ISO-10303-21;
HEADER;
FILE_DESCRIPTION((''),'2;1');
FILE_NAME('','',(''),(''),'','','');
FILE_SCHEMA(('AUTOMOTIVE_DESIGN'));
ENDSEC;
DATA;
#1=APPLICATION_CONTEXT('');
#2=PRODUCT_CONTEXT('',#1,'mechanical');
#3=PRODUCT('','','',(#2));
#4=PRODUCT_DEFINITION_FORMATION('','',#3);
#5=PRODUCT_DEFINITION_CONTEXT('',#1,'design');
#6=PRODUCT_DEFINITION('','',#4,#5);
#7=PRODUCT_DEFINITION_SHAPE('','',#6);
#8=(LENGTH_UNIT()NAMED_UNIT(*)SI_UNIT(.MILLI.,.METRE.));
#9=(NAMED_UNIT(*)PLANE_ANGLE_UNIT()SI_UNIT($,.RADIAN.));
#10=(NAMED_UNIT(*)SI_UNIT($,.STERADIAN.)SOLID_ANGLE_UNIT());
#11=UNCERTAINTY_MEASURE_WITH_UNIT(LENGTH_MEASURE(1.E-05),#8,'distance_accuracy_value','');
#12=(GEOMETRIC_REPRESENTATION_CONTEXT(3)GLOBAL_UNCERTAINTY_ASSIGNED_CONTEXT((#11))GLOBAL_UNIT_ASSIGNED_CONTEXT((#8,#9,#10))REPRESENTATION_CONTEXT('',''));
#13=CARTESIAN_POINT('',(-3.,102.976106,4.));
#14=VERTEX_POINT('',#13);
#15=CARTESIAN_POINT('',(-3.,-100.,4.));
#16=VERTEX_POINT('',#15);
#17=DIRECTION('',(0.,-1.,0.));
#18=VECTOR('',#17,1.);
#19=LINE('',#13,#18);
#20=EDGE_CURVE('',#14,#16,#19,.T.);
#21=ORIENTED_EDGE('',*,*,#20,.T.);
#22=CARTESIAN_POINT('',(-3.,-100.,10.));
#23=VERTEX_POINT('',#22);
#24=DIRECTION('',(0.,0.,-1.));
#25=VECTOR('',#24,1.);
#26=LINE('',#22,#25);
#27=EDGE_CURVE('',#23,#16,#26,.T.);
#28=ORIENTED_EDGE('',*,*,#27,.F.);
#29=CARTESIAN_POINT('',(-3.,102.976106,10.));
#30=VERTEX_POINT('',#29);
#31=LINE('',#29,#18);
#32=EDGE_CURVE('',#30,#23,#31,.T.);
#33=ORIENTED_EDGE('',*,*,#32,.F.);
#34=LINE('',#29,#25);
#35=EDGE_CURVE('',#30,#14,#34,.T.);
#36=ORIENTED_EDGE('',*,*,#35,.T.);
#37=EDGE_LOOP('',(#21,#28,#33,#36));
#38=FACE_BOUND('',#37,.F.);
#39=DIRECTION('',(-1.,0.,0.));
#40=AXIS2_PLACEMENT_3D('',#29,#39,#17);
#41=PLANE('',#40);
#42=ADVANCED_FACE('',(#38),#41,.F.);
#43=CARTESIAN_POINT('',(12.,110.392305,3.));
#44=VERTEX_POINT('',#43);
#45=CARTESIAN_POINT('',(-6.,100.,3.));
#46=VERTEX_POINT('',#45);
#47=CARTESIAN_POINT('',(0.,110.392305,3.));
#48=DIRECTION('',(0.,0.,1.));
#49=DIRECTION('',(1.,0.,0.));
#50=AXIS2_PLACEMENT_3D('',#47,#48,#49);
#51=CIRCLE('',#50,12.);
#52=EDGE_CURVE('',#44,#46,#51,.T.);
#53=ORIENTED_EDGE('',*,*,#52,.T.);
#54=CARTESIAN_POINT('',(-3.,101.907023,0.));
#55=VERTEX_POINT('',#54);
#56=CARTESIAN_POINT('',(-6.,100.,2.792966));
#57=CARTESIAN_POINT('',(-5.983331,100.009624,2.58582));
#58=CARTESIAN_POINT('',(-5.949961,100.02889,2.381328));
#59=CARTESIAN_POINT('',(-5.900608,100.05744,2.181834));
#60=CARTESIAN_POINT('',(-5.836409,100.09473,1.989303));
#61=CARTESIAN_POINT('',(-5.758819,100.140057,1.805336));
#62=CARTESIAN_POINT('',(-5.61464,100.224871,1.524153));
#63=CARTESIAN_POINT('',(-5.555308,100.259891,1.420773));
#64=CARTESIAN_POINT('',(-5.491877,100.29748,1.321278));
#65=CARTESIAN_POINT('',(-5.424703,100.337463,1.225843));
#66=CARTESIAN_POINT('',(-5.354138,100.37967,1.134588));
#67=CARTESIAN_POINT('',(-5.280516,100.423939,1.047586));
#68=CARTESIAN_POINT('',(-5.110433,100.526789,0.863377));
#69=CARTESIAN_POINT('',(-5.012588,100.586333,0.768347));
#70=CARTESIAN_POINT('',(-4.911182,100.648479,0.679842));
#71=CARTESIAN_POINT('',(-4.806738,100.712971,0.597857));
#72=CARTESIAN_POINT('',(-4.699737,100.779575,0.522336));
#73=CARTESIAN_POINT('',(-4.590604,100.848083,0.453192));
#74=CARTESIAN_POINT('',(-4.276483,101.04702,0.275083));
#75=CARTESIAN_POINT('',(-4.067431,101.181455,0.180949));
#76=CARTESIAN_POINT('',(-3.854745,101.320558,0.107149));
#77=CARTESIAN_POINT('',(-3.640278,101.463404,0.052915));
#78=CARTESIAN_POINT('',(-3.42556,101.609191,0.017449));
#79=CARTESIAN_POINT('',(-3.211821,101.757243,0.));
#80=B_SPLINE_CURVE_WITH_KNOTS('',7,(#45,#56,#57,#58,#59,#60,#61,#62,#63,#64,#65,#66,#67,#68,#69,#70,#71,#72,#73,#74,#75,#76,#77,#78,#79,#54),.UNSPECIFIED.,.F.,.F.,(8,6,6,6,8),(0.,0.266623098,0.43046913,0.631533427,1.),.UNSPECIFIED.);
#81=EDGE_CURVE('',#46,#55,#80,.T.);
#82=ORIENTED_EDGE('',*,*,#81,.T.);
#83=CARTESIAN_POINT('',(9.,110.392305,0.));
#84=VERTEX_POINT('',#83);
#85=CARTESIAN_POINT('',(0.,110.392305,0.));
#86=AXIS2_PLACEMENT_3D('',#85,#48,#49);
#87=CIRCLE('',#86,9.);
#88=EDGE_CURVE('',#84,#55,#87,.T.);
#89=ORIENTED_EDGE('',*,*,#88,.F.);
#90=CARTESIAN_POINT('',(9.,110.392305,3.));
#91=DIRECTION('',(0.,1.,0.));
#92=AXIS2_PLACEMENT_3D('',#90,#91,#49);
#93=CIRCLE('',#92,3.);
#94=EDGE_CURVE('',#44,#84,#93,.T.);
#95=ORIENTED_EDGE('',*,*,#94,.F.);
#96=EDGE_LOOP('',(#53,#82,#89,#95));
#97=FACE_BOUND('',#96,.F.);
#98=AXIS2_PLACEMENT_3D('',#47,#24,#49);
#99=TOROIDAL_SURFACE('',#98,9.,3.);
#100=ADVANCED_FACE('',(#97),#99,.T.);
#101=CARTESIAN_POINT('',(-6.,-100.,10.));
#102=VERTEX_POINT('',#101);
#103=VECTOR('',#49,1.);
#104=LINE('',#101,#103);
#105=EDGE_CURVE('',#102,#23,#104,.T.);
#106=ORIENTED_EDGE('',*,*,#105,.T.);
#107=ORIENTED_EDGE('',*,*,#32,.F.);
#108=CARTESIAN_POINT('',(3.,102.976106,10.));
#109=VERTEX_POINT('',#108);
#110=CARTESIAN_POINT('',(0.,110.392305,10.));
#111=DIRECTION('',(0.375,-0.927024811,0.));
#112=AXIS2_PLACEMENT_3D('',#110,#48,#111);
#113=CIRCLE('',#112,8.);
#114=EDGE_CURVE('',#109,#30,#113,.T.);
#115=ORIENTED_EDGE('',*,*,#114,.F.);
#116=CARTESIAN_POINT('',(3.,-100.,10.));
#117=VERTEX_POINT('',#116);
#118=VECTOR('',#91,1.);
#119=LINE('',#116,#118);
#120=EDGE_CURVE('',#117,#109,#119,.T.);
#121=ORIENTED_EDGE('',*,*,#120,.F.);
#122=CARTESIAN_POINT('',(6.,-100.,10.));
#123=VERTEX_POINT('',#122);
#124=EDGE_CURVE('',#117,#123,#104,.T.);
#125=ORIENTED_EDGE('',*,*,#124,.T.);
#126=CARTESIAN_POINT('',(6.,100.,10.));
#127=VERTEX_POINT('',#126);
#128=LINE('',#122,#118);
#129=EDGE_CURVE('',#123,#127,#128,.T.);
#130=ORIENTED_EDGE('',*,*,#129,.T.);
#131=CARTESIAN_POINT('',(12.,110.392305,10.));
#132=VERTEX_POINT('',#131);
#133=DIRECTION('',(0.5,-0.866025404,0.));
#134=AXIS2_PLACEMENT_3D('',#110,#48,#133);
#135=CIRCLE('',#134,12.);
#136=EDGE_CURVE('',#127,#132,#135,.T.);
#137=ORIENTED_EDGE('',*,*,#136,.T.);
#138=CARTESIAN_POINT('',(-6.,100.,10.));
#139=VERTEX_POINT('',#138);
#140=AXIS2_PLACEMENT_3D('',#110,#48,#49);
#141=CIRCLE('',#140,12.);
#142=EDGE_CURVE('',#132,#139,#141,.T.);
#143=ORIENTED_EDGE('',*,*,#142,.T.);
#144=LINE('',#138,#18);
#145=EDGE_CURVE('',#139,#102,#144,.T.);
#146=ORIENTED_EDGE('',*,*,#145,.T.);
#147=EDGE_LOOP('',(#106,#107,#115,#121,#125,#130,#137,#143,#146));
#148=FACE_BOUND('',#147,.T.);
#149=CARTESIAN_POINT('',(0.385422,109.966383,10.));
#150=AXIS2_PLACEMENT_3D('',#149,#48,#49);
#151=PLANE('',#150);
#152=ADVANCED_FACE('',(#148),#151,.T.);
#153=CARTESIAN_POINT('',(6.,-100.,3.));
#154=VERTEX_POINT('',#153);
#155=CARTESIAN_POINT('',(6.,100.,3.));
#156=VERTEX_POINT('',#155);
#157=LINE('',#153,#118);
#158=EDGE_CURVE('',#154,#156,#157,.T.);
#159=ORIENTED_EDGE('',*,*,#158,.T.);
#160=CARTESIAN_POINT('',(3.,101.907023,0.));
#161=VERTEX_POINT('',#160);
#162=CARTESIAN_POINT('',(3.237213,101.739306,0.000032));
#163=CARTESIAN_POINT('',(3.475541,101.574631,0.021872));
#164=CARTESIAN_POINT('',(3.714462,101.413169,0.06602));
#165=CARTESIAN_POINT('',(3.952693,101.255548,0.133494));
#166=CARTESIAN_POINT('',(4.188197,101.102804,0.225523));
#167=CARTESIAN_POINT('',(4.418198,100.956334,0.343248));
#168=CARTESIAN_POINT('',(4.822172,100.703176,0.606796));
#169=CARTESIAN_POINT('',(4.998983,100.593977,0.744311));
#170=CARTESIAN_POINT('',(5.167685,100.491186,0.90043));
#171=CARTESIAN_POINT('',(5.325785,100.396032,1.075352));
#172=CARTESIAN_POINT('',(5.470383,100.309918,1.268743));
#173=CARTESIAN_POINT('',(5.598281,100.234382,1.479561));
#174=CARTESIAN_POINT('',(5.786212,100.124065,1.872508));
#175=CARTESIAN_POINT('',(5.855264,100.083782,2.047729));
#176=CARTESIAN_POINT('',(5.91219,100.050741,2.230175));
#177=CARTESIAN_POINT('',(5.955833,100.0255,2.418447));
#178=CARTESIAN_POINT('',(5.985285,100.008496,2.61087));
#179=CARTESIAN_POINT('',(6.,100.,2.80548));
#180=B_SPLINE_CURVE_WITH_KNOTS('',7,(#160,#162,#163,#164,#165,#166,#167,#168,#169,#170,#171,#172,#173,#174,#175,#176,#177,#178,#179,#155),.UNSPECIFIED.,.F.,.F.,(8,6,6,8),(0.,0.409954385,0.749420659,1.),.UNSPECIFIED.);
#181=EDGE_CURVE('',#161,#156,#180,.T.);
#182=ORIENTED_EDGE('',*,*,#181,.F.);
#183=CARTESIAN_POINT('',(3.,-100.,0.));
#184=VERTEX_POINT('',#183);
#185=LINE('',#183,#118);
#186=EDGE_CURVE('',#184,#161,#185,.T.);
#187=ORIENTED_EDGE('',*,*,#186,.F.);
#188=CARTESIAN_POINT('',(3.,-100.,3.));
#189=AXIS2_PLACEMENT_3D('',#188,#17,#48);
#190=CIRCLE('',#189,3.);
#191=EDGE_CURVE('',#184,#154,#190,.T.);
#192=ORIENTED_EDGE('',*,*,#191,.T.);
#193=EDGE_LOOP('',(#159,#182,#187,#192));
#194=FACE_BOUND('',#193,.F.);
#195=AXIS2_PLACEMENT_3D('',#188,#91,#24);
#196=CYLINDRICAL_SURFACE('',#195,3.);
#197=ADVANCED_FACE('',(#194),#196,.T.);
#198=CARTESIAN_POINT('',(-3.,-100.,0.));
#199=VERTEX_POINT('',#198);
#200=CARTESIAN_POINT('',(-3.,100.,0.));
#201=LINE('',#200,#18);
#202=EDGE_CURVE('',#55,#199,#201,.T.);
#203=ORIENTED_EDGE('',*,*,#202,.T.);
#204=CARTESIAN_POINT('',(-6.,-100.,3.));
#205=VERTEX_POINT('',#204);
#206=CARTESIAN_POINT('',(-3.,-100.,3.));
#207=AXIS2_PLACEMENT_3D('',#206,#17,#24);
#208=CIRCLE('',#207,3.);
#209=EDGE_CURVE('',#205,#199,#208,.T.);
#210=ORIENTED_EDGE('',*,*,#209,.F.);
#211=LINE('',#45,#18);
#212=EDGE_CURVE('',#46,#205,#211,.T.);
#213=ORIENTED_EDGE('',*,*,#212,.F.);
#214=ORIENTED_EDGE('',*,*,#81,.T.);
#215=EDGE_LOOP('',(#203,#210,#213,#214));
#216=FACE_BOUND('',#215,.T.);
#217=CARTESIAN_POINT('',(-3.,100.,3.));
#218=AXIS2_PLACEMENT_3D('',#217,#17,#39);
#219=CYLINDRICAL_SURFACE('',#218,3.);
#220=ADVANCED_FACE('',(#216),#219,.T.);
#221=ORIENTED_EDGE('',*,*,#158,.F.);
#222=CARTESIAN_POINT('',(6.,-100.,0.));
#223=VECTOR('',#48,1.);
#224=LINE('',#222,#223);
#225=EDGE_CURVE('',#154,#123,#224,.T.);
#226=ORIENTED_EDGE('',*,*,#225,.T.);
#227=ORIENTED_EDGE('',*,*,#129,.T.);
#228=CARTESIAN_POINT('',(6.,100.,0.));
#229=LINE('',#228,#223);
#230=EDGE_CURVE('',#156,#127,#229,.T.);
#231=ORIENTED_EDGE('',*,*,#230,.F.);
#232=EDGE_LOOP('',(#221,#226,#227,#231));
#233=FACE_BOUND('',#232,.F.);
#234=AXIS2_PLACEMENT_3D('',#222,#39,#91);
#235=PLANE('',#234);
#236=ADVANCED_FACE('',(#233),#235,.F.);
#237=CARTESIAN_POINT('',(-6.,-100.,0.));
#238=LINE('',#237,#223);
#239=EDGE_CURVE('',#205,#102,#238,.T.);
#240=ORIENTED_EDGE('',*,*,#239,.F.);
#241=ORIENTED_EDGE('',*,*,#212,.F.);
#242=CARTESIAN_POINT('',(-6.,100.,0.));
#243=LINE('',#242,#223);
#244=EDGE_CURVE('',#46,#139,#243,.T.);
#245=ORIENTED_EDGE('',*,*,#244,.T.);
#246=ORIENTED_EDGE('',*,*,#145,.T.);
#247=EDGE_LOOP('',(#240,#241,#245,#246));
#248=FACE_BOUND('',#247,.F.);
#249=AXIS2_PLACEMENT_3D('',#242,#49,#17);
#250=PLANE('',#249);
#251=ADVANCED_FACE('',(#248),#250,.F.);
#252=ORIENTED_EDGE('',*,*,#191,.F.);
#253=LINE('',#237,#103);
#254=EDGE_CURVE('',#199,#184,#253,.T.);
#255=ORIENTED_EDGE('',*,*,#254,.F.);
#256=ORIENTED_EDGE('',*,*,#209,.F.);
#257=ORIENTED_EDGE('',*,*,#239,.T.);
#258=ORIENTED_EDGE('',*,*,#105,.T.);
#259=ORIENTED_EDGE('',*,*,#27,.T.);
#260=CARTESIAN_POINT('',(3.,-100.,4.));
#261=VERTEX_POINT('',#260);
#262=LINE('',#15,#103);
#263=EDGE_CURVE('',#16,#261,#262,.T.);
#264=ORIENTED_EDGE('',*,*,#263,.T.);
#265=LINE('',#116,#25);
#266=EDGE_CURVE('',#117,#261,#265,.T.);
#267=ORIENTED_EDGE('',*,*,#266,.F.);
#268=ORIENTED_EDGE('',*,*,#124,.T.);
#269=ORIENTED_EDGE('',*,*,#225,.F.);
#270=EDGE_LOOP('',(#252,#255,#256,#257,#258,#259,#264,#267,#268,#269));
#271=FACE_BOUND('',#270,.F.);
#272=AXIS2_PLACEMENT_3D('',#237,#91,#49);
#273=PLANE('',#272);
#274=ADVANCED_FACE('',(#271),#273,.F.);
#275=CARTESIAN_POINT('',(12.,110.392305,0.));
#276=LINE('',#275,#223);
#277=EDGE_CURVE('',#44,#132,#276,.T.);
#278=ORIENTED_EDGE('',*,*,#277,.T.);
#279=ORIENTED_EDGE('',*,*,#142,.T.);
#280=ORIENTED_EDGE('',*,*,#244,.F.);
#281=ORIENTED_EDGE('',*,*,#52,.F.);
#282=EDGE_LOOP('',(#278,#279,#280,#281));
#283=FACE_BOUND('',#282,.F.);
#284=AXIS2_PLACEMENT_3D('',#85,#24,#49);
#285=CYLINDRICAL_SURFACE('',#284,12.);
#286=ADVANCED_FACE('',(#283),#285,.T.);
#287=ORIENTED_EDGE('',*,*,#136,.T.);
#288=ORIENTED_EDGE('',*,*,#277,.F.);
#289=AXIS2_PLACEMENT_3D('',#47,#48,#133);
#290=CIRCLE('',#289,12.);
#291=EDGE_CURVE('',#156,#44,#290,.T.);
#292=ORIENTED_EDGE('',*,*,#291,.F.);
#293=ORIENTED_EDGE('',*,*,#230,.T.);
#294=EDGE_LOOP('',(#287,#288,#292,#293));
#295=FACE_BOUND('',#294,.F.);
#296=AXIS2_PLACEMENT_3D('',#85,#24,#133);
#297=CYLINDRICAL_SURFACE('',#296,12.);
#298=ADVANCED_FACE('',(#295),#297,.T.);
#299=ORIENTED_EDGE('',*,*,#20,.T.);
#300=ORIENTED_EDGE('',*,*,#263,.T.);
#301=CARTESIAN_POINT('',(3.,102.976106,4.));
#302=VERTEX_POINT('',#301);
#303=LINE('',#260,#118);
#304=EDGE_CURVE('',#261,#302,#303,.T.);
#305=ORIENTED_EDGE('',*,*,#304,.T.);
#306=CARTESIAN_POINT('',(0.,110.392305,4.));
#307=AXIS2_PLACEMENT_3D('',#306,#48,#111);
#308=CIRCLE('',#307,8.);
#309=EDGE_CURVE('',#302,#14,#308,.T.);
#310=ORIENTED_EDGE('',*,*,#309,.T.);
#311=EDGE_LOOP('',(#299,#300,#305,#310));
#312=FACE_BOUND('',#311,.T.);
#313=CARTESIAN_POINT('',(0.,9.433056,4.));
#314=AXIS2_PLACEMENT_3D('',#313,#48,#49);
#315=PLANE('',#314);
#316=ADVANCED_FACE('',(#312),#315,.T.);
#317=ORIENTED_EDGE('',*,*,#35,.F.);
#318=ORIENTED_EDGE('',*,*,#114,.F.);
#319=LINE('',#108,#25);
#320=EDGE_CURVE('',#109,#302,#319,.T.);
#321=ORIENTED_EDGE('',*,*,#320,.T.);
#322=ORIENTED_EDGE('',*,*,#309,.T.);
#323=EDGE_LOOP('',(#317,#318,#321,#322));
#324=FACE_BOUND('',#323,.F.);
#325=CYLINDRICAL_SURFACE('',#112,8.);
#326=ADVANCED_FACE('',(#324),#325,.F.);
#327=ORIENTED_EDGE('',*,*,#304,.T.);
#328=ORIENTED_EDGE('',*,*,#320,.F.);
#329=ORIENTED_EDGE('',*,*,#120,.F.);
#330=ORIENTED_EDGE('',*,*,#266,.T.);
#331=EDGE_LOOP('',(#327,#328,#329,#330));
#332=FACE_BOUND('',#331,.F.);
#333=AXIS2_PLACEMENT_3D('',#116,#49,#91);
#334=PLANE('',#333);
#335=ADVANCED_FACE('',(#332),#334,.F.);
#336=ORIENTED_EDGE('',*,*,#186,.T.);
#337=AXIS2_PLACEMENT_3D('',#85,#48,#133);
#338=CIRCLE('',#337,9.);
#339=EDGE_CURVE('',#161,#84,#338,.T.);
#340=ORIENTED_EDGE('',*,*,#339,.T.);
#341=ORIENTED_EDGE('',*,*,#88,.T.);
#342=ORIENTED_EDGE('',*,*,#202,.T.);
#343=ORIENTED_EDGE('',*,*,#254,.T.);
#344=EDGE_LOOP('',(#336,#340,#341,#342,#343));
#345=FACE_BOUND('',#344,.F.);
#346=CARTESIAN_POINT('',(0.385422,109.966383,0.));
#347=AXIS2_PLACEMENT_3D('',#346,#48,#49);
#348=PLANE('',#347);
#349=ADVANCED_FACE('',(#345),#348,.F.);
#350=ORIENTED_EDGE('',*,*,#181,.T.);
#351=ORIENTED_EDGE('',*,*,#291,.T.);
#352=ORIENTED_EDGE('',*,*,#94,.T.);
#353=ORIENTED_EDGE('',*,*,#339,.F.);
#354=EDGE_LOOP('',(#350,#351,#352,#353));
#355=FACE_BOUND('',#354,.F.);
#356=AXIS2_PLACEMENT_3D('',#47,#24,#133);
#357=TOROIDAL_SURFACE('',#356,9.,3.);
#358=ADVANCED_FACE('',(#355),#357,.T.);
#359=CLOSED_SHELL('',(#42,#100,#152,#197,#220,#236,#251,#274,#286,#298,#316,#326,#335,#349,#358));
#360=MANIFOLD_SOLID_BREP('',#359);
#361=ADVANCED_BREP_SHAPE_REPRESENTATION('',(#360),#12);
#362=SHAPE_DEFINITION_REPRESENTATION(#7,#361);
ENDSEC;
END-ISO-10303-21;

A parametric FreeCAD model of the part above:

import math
import FreeCAD as App
import Part
import Sketcher

V = App.Vector
Q = App.Units.Quantity


def edges_at(feature, points):
    """Names of the edges that pass closest to the given points."""
    edges = feature.Shape.Edges
    near = lambda p: min(range(len(edges)), key=lambda i: edges[i].distToShape(Part.Vertex(*p))[0])
    return sorted({f"Edge{near(p) + 1}" for p in points})

doc = App.newDocument("Part")
body = doc.addObject("PartDesign::Body", "Body")

sketch1 = doc.addObject("Sketcher::SketchObject", "Sketch")
body.addObject(sketch1)
sketch1.AttachmentSupport = (doc.XY_Plane, [""])
sketch1.MapMode = "FlatFace"
sketch1.addGeometry([
    Part.ArcOfCircle(Part.Circle(V(0, 110.392305, 0), V(0, 0, 1), 12), math.radians(0), math.radians(240)),
    Part.LineSegment(V(-6, 100, 0), V(-6, -100, 0)),
    Part.LineSegment(V(-6, -100, 0), V(6, -100, 0)),
    Part.LineSegment(V(6, -100, 0), V(6, 100, 0)),
    Part.ArcOfCircle(Part.Circle(V(0, 110.392305, 0), V(0, 0, 1), 12), math.radians(-60), math.radians(0)),
], False)
sketch1.addConstraint([
    Sketcher.Constraint("Coincident", 0, 2, 1, 1),
    Sketcher.Constraint("Coincident", 1, 2, 2, 1),
    Sketcher.Constraint("Coincident", 2, 2, 3, 1),
    Sketcher.Constraint("Coincident", 3, 2, 4, 1),
    Sketcher.Constraint("Tangent", 4, 2, 0, 1),
    Sketcher.Constraint("Vertical", 1),
    Sketcher.Constraint("Horizontal", 2),
    Sketcher.Constraint("Vertical", 3),
    Sketcher.Constraint("Equal", 0, 4),
    Sketcher.Constraint("Symmetric", 0, 2, 2, 2, -1, 1),
    Sketcher.Constraint("PointOnObject", 0, 3, -2),
    Sketcher.Constraint("Horizontal", 0, 3, 4, 2),
    Sketcher.Constraint("Radius", 0, Q("12 mm")),
    Sketcher.Constraint("DistanceX", 2, 1, 2, 2, Q("12 mm")),
    Sketcher.Constraint("DistanceY", 1, 2, 1, 1, Q("200 mm")),
])
pad1 = doc.addObject("PartDesign::Pad", "Pad")
body.addObject(pad1)
pad1.Profile = sketch1
pad1.Length = 10

sketch2 = doc.addObject("Sketcher::SketchObject", "Sketch001")
body.addObject(sketch2)
sketch2.AttachmentSupport = (doc.XY_Plane, [""])
sketch2.MapMode = "FlatFace"
sketch2.AttachmentOffset = App.Placement(V(0, 0, 10), App.Rotation())
sketch2.addGeometry([
    Part.LineSegment(V(3, -100, 0), V(3, 102.976106, 0)),
    Part.ArcOfCircle(Part.Circle(V(0, 110.392305, 0), V(0, 0, 1), 8), math.radians(-67.975687), math.radians(247.975687)),
    Part.LineSegment(V(-3, 102.976106, 0), V(-3, -100, 0)),
    Part.LineSegment(V(-3, -100, 0), V(3, -100, 0)),
], False)
sketch2.addConstraint([
    Sketcher.Constraint("Coincident", 0, 2, 1, 1),
    Sketcher.Constraint("Coincident", 1, 2, 2, 1),
    Sketcher.Constraint("Coincident", 2, 2, 3, 1),
    Sketcher.Constraint("Coincident", 3, 2, 0, 1),
    Sketcher.Constraint("Vertical", 0),
    Sketcher.Constraint("Vertical", 2),
    Sketcher.Constraint("Horizontal", 3),
    Sketcher.Constraint("Symmetric", 0, 2, 1, 2, -2),
    Sketcher.Constraint("Radius", 1, Q("8 mm")),
    Sketcher.Constraint("DistanceX", 3, 1, 3, 2, Q("6 mm")),
    Sketcher.Constraint("DistanceY", 2, 2, -1, 1, Q("100 mm")),
    Sketcher.Constraint("DistanceY", 0, 1, 0, 2, Q("202.976106 mm")),
])
pocket1 = doc.addObject("PartDesign::Pocket", "Pocket")
body.addObject(pocket1)
pocket1.Profile = sketch2
pocket1.Length = 6
doc.recompute()

fillet = doc.addObject("PartDesign::Fillet", "Fillet")
body.addObject(fillet)
fillet.Base = (pocket1, edges_at(pocket1, [(6, 0, 0), (-6, 120.785, 0), (-6, 0, 0)]))
fillet.Radius = 3

doc.recompute()
